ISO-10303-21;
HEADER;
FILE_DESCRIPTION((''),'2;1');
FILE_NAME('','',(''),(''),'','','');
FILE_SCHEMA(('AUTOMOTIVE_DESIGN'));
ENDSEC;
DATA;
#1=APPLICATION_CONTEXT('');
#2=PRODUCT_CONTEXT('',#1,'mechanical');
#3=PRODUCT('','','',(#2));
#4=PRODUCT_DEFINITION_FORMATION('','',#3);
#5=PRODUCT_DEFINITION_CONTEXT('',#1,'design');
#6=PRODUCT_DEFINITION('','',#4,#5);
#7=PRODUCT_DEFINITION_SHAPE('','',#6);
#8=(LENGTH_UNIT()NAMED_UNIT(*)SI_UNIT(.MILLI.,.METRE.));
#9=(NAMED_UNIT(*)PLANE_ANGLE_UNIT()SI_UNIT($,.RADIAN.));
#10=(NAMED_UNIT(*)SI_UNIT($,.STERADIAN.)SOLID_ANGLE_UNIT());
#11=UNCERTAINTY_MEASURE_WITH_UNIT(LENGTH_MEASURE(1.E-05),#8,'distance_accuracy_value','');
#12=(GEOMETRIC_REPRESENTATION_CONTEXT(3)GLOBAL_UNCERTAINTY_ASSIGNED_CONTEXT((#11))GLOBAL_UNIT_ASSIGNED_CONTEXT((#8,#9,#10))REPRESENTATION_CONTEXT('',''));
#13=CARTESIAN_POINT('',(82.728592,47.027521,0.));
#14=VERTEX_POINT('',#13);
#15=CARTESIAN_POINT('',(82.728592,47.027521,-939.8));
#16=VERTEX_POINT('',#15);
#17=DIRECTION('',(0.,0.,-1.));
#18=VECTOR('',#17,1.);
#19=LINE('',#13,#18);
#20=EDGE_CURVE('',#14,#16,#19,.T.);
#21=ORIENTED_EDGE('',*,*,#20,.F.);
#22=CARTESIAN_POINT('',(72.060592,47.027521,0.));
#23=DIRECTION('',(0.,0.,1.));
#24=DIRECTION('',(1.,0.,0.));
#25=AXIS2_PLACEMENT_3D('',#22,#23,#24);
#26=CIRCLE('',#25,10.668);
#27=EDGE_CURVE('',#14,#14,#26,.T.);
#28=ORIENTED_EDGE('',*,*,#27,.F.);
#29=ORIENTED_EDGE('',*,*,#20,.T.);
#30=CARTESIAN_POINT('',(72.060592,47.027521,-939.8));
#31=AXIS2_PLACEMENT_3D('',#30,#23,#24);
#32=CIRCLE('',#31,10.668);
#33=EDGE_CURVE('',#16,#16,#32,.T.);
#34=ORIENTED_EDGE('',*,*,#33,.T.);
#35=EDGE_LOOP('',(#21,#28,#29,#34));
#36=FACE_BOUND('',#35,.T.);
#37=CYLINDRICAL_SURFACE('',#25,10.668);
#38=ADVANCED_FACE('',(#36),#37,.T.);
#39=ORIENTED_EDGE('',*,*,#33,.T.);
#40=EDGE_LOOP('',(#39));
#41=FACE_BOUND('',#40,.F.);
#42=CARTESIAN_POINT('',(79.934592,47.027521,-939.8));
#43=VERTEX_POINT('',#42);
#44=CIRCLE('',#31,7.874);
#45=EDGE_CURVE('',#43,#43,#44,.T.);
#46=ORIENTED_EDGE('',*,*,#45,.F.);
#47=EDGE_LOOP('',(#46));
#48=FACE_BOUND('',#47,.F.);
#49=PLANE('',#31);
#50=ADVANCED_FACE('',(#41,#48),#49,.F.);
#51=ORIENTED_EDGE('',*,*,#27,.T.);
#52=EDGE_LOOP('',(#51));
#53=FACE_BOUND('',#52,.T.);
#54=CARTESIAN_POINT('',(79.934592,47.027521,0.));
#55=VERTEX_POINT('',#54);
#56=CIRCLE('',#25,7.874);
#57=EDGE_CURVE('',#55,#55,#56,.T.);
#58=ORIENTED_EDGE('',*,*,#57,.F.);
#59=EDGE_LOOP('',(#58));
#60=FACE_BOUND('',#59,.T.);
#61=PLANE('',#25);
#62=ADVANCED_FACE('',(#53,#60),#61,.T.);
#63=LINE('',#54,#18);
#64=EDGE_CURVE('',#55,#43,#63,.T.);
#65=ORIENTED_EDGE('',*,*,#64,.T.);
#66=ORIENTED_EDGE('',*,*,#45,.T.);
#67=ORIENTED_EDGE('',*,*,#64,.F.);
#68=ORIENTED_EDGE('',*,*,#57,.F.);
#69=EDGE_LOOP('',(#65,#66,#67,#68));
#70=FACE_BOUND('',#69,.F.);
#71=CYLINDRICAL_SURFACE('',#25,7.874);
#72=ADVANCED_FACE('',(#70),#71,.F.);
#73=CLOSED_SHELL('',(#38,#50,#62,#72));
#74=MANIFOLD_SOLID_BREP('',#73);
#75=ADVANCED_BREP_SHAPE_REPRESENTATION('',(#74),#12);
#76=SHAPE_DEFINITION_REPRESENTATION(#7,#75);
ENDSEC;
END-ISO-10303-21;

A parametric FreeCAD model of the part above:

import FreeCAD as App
import Part
import Sketcher
Q = App.Units.Quantity

doc = App.newDocument("Part")
body = doc.addObject("PartDesign::Body", "Body")

# Sketch on XY plane
sketch1 = body.newObject("Sketcher::SketchObject", "Sketch")
sketch1.AttachmentSupport = (doc.getObject("XY_Plane"), [""])
sketch1.MapMode = "FlatFace"
sketch1.addGeometry([
    Part.Circle(App.Vector(72.060592, 47.027521, 0), App.Vector(0, 0, 1), 10.668),
    Part.Circle(App.Vector(72.060592, 47.027521, 0), App.Vector(0, 0, 1), 7.874),
], False)
sketch1.addConstraint([
    Sketcher.Constraint("Coincident", 1, 3, 0, 3),
    Sketcher.Constraint("Diameter", 0, Q("0.84 in")),
    Sketcher.Constraint("Diameter", 1, Q("0.62 in")),
    Sketcher.Constraint("DistanceX", -1, 1, 0, 3, Q("72.060592 mm")),
    Sketcher.Constraint("DistanceY", -1, 1, 0, 3, Q("47.027521 mm")),
])
pad1 = body.newObject("PartDesign::Pad", "Pad")
pad1.Profile = sketch1
pad1.Length = Q("37 in")
pad1.Reversed = True

doc.recompute()
